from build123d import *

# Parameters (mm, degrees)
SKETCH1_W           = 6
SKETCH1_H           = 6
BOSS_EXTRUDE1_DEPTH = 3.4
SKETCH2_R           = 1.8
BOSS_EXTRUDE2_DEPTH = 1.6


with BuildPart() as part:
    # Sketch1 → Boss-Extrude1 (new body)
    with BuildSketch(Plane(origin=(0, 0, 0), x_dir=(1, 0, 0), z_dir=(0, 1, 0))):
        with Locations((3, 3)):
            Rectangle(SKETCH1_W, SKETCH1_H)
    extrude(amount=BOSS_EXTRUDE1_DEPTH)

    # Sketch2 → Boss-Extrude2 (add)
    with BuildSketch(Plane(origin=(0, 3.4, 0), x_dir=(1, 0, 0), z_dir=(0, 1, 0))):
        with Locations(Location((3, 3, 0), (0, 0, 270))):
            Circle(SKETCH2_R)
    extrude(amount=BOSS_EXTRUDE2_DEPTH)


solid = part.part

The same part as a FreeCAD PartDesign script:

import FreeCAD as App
import Part
import Sketcher


def add_polygon(sketch, points):
    """Adds a closed chain of lines whose ends are joined by coincident constraints."""
    first, n = sketch.GeometryCount, len(points)
    for a, b in zip(points, points[1:] + points[:1]):
        sketch.addGeometry(Part.LineSegment(App.Vector(*a, 0), App.Vector(*b, 0)), False)
    for i in range(n):
        sketch.addConstraint(Sketcher.Constraint("Coincident", first + i, 2, first + (i + 1) % n, 1))

doc = App.newDocument("Part")
params = doc.addObject("Spreadsheet::Sheet", "Params")
for row, (alias, value) in enumerate([
    ("sketch1_width", "6 mm"),
    ("pad1_length", "3.4 mm"),
    ("sketch2_diameter", "3.6 mm"),
    ("pad2_length", "1.6 mm"),
], start=1):
    params.set(f"A{row}", alias)
    params.set(f"B{row}", "=" + value)
    params.setAlias(f"B{row}", alias)

body = doc.addObject("PartDesign::Body", "Body")

sketch1 = body.newObject("Sketcher::SketchObject", "Sketch")
sketch1.AttachmentSupport = (doc.getObject("XZ_Plane"), [""])
sketch1.MapMode = "FlatFace"
add_polygon(sketch1, [(0, -6), (0, 0), (6, 0), (6, -6)])
sketch1.addConstraint(Sketcher.Constraint("Vertical", 0))
sketch1.addConstraint(Sketcher.Constraint("Horizontal", 1))
sketch1.addConstraint(Sketcher.Constraint("Vertical", 2))
sketch1.addConstraint(Sketcher.Constraint("Horizontal", 3))
sketch1.addConstraint(Sketcher.Constraint("Coincident", 0, 2, -1, 1))
sketch1.addConstraint(Sketcher.Constraint("Equal", 3, 0))
sketch1.addConstraint(Sketcher.Constraint("DistanceX", 1, 1, 1, 2, 6.0))
sketch1.setExpression("Constraints[10]", "Params.sketch1_width")
pad1 = body.newObject("PartDesign::Pad", "Pad")
pad1.Profile = sketch1
pad1.setExpression("Length", "Params.pad1_length")
pad1.Reversed = True

sketch2 = body.newObject("Sketcher::SketchObject", "Sketch001")
sketch2.AttachmentSupport = (doc.getObject("XZ_Plane"), [""])
sketch2.MapMode = "FlatFace"
sketch2.AttachmentOffset = App.Placement(App.Vector(0, 0, -3.4), App.Rotation())
sketch2.addGeometry(Part.Circle(App.Vector(3, -3, 0), App.Vector(0, 0, 1), 1.8), False)
sketch2.addConstraint(Sketcher.Constraint("Diameter", 0, 3.6))
sketch2.addConstraint(Sketcher.Constraint("DistanceX", -1, 1, 0, 3, 3.0))
sketch2.addConstraint(Sketcher.Constraint("DistanceY", 0, 3, -1, 1, 3.0))
sketch2.setExpression("Constraints[0]", "Params.sketch2_diameter")
pad2 = body.newObject("PartDesign::Pad", "Pad001")
pad2.Profile = sketch2
pad2.setExpression("Length", "Params.pad2_length")
pad2.Reversed = True

doc.recompute()
